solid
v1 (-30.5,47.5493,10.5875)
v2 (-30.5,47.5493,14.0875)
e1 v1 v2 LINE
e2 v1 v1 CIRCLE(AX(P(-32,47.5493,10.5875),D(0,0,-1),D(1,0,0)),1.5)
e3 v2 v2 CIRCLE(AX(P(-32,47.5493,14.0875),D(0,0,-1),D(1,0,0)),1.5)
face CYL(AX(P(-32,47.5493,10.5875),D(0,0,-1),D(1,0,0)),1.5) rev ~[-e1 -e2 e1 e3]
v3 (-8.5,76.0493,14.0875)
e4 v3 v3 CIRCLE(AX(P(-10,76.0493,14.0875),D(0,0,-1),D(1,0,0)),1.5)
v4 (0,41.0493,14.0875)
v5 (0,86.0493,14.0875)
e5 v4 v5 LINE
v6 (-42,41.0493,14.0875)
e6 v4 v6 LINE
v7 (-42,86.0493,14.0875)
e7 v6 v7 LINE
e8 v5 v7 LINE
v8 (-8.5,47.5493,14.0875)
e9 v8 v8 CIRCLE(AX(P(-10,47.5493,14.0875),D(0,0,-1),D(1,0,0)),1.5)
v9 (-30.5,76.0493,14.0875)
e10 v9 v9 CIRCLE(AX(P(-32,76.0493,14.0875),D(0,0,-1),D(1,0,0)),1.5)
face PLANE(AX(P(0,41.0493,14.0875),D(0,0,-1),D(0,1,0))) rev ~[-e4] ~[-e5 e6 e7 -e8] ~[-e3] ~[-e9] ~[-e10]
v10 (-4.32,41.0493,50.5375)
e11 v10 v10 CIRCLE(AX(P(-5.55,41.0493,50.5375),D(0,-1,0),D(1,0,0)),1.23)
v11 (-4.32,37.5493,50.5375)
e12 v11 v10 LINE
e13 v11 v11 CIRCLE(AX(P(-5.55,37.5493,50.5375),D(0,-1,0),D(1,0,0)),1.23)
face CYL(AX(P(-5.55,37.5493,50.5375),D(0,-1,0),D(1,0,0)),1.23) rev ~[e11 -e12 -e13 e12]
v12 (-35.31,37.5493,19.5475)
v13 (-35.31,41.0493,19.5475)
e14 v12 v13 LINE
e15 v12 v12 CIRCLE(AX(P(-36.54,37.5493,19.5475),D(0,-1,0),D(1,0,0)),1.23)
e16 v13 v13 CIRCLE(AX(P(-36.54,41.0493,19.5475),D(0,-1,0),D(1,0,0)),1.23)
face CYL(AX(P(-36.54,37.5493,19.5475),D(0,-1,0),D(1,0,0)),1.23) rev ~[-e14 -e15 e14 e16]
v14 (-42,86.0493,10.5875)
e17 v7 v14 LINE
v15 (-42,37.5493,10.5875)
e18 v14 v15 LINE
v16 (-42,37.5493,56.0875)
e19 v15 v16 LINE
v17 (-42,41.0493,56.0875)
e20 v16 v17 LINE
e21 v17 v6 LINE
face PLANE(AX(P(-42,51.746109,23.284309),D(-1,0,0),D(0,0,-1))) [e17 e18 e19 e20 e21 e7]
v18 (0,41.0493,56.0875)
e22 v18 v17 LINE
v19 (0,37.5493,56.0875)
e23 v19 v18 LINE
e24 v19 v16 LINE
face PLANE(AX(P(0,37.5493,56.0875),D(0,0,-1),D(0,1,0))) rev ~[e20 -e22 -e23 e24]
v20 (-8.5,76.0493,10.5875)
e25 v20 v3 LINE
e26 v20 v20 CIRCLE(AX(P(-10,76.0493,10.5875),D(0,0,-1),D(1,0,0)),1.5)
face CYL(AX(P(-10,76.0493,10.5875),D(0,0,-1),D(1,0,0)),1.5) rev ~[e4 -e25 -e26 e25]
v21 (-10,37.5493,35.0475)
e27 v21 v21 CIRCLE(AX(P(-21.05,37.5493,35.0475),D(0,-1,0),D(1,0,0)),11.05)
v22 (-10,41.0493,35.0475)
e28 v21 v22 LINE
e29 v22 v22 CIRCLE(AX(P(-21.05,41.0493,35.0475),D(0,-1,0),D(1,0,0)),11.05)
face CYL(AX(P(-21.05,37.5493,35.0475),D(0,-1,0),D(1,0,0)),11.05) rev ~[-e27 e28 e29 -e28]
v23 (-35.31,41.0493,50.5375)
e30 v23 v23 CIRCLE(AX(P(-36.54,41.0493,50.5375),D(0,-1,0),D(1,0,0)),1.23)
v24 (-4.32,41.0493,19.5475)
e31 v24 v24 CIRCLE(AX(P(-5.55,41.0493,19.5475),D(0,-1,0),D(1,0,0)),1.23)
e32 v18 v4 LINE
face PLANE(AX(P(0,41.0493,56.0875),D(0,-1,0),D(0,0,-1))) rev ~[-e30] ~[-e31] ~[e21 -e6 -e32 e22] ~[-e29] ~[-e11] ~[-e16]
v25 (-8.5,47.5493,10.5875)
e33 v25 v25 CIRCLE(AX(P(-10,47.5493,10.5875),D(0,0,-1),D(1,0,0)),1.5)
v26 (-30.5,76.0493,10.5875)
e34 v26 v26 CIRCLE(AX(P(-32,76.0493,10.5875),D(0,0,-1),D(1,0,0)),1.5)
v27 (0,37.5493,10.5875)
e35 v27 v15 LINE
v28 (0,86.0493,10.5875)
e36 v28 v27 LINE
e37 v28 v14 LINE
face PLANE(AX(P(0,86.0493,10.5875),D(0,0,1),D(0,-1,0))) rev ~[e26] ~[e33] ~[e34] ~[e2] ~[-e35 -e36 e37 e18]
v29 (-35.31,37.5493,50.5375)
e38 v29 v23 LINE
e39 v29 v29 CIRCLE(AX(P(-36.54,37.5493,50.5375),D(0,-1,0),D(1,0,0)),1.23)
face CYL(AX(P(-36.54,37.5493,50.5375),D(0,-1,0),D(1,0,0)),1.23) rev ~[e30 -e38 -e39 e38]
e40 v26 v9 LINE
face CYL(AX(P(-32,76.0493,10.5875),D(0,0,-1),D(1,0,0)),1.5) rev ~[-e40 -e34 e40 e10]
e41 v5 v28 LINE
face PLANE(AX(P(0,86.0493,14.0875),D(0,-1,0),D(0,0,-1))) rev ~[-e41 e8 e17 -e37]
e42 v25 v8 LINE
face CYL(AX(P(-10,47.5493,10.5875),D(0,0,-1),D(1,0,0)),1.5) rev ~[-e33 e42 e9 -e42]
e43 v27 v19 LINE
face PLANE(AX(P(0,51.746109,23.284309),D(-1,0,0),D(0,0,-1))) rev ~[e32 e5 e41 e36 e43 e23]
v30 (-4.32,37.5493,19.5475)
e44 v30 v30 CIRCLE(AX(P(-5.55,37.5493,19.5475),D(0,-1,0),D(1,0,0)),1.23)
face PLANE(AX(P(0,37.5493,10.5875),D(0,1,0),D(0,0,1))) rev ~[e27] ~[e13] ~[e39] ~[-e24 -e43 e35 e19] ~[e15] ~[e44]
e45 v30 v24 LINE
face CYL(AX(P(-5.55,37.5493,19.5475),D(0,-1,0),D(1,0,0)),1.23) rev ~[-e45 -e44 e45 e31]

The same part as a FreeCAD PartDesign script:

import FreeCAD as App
import Part
import Sketcher

V = App.Vector


def add_polygon(sketch, points):
    """Adds a closed chain of lines whose ends are joined by coincident constraints."""
    first, n = sketch.GeometryCount, len(points)
    for a, b in zip(points, points[1:] + points[:1]):
        sketch.addGeometry(Part.LineSegment(App.Vector(*a, 0), App.Vector(*b, 0)), False)
    for i in range(n):
        sketch.addConstraint(Sketcher.Constraint("Coincident", first + i, 2, first + (i + 1) % n, 1))

doc = App.newDocument("Part")
params = doc.addObject("Spreadsheet::Sheet", "Params")
for row, (alias, value) in enumerate([
    ("sketch1_width", "45 mm"),
    ("sketch1_height", "42 mm"),
    ("sketch1_width2", "3.5 mm"),
    ("pad1_length", "42 mm"),
    ("sketch2_diameter", "2.46 mm"),
    ("sketch3_diameter", "22.1 mm"),
    ("sketch4_diameter", "3 mm"),
], start=1):
    params.set(f"A{row}", alias)
    params.set(f"B{row}", "=" + value)
    params.setAlias(f"B{row}", alias)

body = doc.addObject("PartDesign::Body", "Body")

# Sketch on YZ plane
sketch1 = body.newObject("Sketcher::SketchObject", "Sketch")
sketch1.AttachmentSupport = (doc.getObject("YZ_Plane"), [""])
sketch1.MapMode = "FlatFace"
add_polygon(sketch1, [(41, 56.1), (37.5, 56.1), (37.5, 10.6), (86, 10.6), (86, 14.1), (41, 14.1)])  # lines 0-5
sketch1.addConstraint([
    Sketcher.Constraint("Horizontal", 0),
    Sketcher.Constraint("Vertical", 1),
    Sketcher.Constraint("Horizontal", 2),
    Sketcher.Constraint("Vertical", 3),
    Sketcher.Constraint("Horizontal", 4),
    Sketcher.Constraint("Vertical", 5),
    Sketcher.Constraint("Equal", 0, 3),
    Sketcher.Constraint("DistanceX", 4, 2, 4, 1, 45.0),
    Sketcher.Constraint("DistanceY", 5, 1, 5, 2, 42.0),
    Sketcher.Constraint("DistanceX", 0, 2, 0, 1, 3.5),
    Sketcher.Constraint("DistanceX", -1, 1, 0, 2, 37.5493),
    Sketcher.Constraint("DistanceY", -1, 1, 0, 2, 56.0875),
])
sketch1.setExpression("Constraints[13]", "Params.sketch1_width")
sketch1.setExpression("Constraints[14]", "Params.sketch1_height")
sketch1.setExpression("Constraints[15]", "Params.sketch1_width2")
pad1 = body.newObject("PartDesign::Pad", "Pad")
pad1.Profile = sketch1
pad1.setExpression("Length", "Params.pad1_length")
pad1.Reversed = True

# Sketch on XZ plane
sketch2 = body.newObject("Sketcher::SketchObject", "Sketch001")
sketch2.AttachmentSupport = (doc.getObject("XZ_Plane"), [""])
sketch2.MapMode = "FlatFace"
sketch2.AttachmentOffset = App.Placement(V(0, 0, -37.5493), App.Rotation())
sketch2.addGeometry([
    Part.Circle(V(-36.5, 19.5, 0), V(0, 0, 1), 1.2),
    Part.Circle(V(-5.5, 19.5, 0), V(0, 0, 1), 1.2),
    Part.Circle(V(-36.5, 50.5, 0), V(0, 0, 1), 1.2),
    Part.Circle(V(-5.5, 50.5, 0), V(0, 0, 1), 1.2),
], False)
sketch2.addConstraint([
    Sketcher.Constraint("Equal", 0, 1),
    Sketcher.Constraint("Equal", 1, 2),
    Sketcher.Constraint("Equal", 2, 3),
    Sketcher.Constraint("Horizontal", 0, 3, 1, 3),
    Sketcher.Constraint("Horizontal", 2, 3, 3, 3),
    Sketcher.Constraint("Vertical", 0, 3, 2, 3),
    Sketcher.Constraint("Vertical", 1, 3, 3, 3),
    Sketcher.Constraint("Diameter", 0, 2.46),
    Sketcher.Constraint("DistanceX", 0, 3, -1, 1, 36.54),
    Sketcher.Constraint("DistanceX", 1, 3, -1, 1, 5.55),
    Sketcher.Constraint("DistanceY", 0, 3, 2, 3, 30.99),
    Sketcher.Constraint("DistanceY", -1, 1, 0, 3, 19.5475),
])
sketch2.setExpression("Constraints[7]", "Params.sketch2_diameter")
pocket1 = body.newObject("PartDesign::Pocket", "Pocket")
pocket1.Profile = sketch2
pocket1.Type = "ThroughAll"

# Sketch on XZ plane
sketch3 = body.newObject("Sketcher::SketchObject", "Sketch002")
sketch3.AttachmentSupport = (doc.getObject("XZ_Plane"), [""])
sketch3.MapMode = "FlatFace"
sketch3.AttachmentOffset = App.Placement(V(0, 0, -37.5493), App.Rotation())
sketch3.addGeometry(Part.Circle(V(-21, 35, 0), V(0, 0, 1), 11), False)
sketch3.addConstraint([
    Sketcher.Constraint("Diameter", 0, 22.1),
    Sketcher.Constraint("DistanceX", 0, 3, -1, 1, 21.05),
    Sketcher.Constraint("DistanceY", -1, 1, 0, 3, 35.0475),
])
sketch3.setExpression("Constraints[0]", "Params.sketch3_diameter")
pocket2 = body.newObject("PartDesign::Pocket", "Pocket001")
pocket2.Profile = sketch3
pocket2.Type = "ThroughAll"

# Sketch on XY plane
sketch4 = body.newObject("Sketcher::SketchObject", "Sketch003")
sketch4.AttachmentSupport = (doc.getObject("XY_Plane"), [""])
sketch4.MapMode = "FlatFace"
sketch4.AttachmentOffset = App.Placement(V(0, 0, 10.5875), App.Rotation())
sketch4.addGeometry([
    Part.Circle(V(-32, 76, 0), V(0, 0, 1), 1.5),
    Part.Circle(V(-10, 76, 0), V(0, 0, 1), 1.5),
    Part.Circle(V(-32, 47.5, 0), V(0, 0, 1), 1.5),
    Part.Circle(V(-10, 47.5, 0), V(0, 0, 1), 1.5),
], False)
sketch4.addConstraint([
    Sketcher.Constraint("Equal", 0, 1),
    Sketcher.Constraint("Equal", 1, 2),
    Sketcher.Constraint("Equal", 2, 3),
    Sketcher.Constraint("Horizontal", 0, 3, 1, 3),
    Sketcher.Constraint("Horizontal", 2, 3, 3, 3),
    Sketcher.Constraint("Vertical", 0, 3, 2, 3),
    Sketcher.Constraint("Vertical", 1, 3, 3, 3),
    Sketcher.Constraint("Diameter", 0, 3.0),
    Sketcher.Constraint("DistanceX", 0, 3, -1, 1, 32.0),
    Sketcher.Constraint("DistanceX", 1, 3, -1, 1, 10.0),
    Sketcher.Constraint("DistanceY", 2, 3, 0, 3, 28.5),
    Sketcher.Constraint("DistanceY", -1, 1, 0, 3, 76.0493),
])
sketch4.setExpression("Constraints[7]", "Params.sketch4_diameter")
pocket3 = body.newObject("PartDesign::Pocket", "Pocket002")
pocket3.Profile = sketch4
pocket3.Type = "UpToFirst"
pocket3.Reversed = True

doc.recompute()
